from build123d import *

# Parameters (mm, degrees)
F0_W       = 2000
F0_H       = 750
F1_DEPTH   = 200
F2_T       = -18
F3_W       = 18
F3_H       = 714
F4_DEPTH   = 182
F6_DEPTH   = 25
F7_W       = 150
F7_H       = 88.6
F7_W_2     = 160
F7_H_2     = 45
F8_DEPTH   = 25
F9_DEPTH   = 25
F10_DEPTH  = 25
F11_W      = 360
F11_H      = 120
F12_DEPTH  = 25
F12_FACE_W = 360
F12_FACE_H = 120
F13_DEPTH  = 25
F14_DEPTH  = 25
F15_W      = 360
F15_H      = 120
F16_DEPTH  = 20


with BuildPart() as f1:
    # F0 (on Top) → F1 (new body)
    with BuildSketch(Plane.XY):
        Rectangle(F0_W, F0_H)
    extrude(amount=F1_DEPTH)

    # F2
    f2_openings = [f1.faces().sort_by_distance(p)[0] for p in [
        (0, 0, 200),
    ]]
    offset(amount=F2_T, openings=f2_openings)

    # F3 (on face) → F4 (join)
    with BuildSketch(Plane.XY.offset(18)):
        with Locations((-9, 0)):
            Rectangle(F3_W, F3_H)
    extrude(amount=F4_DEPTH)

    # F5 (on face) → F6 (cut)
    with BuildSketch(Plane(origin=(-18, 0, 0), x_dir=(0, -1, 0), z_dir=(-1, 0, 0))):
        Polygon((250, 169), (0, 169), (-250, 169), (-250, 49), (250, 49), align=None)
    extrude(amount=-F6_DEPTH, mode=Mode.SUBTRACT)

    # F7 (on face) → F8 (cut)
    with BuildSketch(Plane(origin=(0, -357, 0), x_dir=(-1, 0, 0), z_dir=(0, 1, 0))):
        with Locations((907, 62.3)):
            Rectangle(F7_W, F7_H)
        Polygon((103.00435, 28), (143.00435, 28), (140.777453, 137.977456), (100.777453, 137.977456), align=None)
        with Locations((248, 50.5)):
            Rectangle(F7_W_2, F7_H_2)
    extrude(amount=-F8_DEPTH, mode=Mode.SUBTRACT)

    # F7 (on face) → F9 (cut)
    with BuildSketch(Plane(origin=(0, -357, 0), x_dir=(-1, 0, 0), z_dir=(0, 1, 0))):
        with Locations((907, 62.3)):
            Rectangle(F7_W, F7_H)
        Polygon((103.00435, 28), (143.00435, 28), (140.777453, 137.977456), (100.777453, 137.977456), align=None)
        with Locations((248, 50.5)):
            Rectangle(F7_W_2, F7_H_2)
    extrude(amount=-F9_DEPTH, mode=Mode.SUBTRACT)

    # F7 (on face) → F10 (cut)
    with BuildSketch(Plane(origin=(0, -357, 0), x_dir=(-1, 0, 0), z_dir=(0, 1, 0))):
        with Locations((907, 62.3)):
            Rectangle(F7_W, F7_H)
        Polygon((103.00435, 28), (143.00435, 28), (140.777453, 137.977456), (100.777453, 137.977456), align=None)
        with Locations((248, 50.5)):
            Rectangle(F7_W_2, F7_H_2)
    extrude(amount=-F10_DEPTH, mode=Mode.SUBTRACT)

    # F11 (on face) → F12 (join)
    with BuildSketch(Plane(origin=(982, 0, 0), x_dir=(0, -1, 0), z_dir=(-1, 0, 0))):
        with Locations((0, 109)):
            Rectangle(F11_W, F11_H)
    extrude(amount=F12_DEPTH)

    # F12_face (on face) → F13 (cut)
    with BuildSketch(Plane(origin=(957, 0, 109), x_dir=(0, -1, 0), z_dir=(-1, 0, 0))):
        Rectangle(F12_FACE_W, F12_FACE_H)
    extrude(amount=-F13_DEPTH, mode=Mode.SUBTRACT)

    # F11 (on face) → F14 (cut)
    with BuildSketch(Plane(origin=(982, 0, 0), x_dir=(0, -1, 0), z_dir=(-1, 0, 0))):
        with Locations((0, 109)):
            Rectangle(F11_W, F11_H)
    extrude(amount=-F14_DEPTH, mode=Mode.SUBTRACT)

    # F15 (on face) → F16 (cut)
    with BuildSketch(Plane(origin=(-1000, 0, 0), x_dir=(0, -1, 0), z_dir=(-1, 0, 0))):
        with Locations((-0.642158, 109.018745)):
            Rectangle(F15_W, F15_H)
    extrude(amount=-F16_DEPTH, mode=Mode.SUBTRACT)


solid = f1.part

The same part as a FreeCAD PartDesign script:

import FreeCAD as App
import Part
import Sketcher
from FreeCAD import Vector
Q = App.Units.Quantity


def faces_at(feature, points):
    """Names of the faces that lie closest to the given points."""
    faces = feature.Shape.Faces
    near = lambda p: min(range(len(faces)), key=lambda i: faces[i].distToShape(Part.Vertex(*p))[0])
    return sorted({f"Face{near(p) + 1}" for p in points})


def add_polygon(sketch, points):
    """Adds a closed chain of lines whose ends are joined by coincident constraints."""
    first, n = sketch.GeometryCount, len(points)
    for a, b in zip(points, points[1:] + points[:1]):
        sketch.addGeometry(Part.LineSegment(App.Vector(*a, 0), App.Vector(*b, 0)), False)
    for i in range(n):
        sketch.addConstraint(Sketcher.Constraint("Coincident", first + i, 2, first + (i + 1) % n, 1))

doc = App.newDocument("Part")
params = doc.addObject("Spreadsheet::Sheet", "Params")
for row, (alias, value) in enumerate([
    ("sketch1_width", "2000 mm"),
    ("sketch1_height", "750 mm"),
    ("pad1_length", "200 mm"),
    ("thickness_wall", "18 mm"),
    ("sketch2_width", "18 mm"),
    ("sketch2_height", "714 mm"),
    ("pad2_length", "182 mm"),
    ("sketch3_width", "500 mm"),
    ("sketch3_height", "120 mm"),
    ("pocket1_length", "25 mm"),
    ("sketch4_width", "150 mm"),
    ("sketch4_width2", "40 mm"),
    ("sketch4_width3", "160 mm"),
    ("sketch4_height", "45 mm"),
    ("sketch4_length", "110 mm"),
    ("pocket2_length", "25 mm"),
    ("sketch5_width", "150 mm"),
    ("sketch5_width2", "40 mm"),
    ("sketch5_width3", "160 mm"),
    ("sketch5_height", "45 mm"),
    ("sketch5_length", "110 mm"),
    ("pocket3_length", "25 mm"),
    ("sketch6_width", "150 mm"),
    ("sketch6_width2", "40 mm"),
    ("sketch6_width3", "160 mm"),
    ("sketch6_height", "45 mm"),
    ("sketch6_length", "110 mm"),
    ("pocket4_length", "25 mm"),
    ("sketch7_width", "360 mm"),
    ("sketch7_height", "120 mm"),
    ("pad3_length", "25 mm"),
    ("sketch8_width", "360 mm"),
    ("sketch8_height", "120 mm"),
    ("pocket5_length", "25 mm"),
    ("sketch9_width", "360 mm"),
    ("sketch9_height", "120 mm"),
    ("pocket6_length", "25 mm"),
    ("sketch10_width", "360 mm"),
    ("sketch10_height", "120 mm"),
    ("pocket7_length", "20 mm"),
], start=1):
    params.set(f"A{row}", alias)
    params.set(f"B{row}", "=" + value)
    params.setAlias(f"B{row}", alias)

body = doc.addObject("PartDesign::Body", "Body")

# Sketch on XY plane
sketch1 = body.newObject("Sketcher::SketchObject", "Sketch")
sketch1.AttachmentSupport = (doc.getObject("XY_Plane"), [""])
sketch1.MapMode = "FlatFace"
add_polygon(sketch1, [(-1000, 375), (-1000, -375), (1000, -375), (1000, 375)])  # lines 0-3
sketch1.addConstraint(Sketcher.Constraint("Vertical", 0))
sketch1.addConstraint(Sketcher.Constraint("Horizontal", 1))
sketch1.addConstraint(Sketcher.Constraint("Vertical", 2))
sketch1.addConstraint(Sketcher.Constraint("Horizontal", 3))
sketch1.addConstraint(Sketcher.Constraint("Symmetric", 0, 2, 2, 2, -1, 1))
sketch1.addConstraint(Sketcher.Constraint("DistanceX", 1, 1, 1, 2, Q("2000 mm")))
sketch1.addConstraint(Sketcher.Constraint("DistanceY", 0, 2, 0, 1, Q("750 mm")))
sketch1.setExpression("Constraints[9]", "Params.sketch1_width")
sketch1.setExpression("Constraints[10]", "Params.sketch1_height")
pad1 = body.newObject("PartDesign::Pad", "Pad")
pad1.Profile = sketch1
pad1.setExpression("Length", "Params.pad1_length")
doc.recompute()

thickness = body.newObject("PartDesign::Thickness", "Thickness")
thickness.Base = (pad1, faces_at(pad1, [(0, 0, 200)]))
thickness.setExpression("Value", "Params.thickness_wall")
thickness.Reversed = True
thickness.Join = "Arc"

# Sketch on XY plane
sketch2 = body.newObject("Sketcher::SketchObject", "Sketch001")
sketch2.AttachmentSupport = (doc.getObject("XY_Plane"), [""])
sketch2.MapMode = "FlatFace"
sketch2.AttachmentOffset = App.Placement(Vector(0, 0, 18), App.Rotation())
add_polygon(sketch2, [(-18, 357), (-18, -357), (0, -357), (0, 357)])  # lines 0-3
sketch2.addConstraint(Sketcher.Constraint("Vertical", 0))
sketch2.addConstraint(Sketcher.Constraint("Horizontal", 1))
sketch2.addConstraint(Sketcher.Constraint("Vertical", 2))
sketch2.addConstraint(Sketcher.Constraint("Horizontal", 3))
sketch2.addConstraint(Sketcher.Constraint("Symmetric", 1, 2, 2, 2, -1, 1))
sketch2.addConstraint(Sketcher.Constraint("DistanceX", 1, 1, 1, 2, Q("18 mm")))
sketch2.addConstraint(Sketcher.Constraint("DistanceY", 0, 2, 0, 1, Q("714 mm")))
sketch2.setExpression("Constraints[9]", "Params.sketch2_width")
sketch2.setExpression("Constraints[10]", "Params.sketch2_height")
pad2 = body.newObject("PartDesign::Pad", "Pad001")
pad2.Profile = sketch2
pad2.setExpression("Length", "Params.pad2_length")

# Sketch on YZ plane
sketch3 = body.newObject("Sketcher::SketchObject", "Sketch002")
sketch3.AttachmentSupport = (doc.getObject("YZ_Plane"), [""])
sketch3.MapMode = "FlatFace"
sketch3.AttachmentOffset = App.Placement(Vector(0, 0, -18), App.Rotation())
add_polygon(sketch3, [(-250, 169), (250, 169), (250, 49), (-250, 49)])  # lines 0-3
sketch3.addConstraint(Sketcher.Constraint("Horizontal", 0))
sketch3.addConstraint(Sketcher.Constraint("Vertical", 1))
sketch3.addConstraint(Sketcher.Constraint("Horizontal", 2))
sketch3.addConstraint(Sketcher.Constraint("Vertical", 3))
sketch3.addConstraint(Sketcher.Constraint("DistanceX", 0, 1, 0, 2, Q("500 mm")))
sketch3.addConstraint(Sketcher.Constraint("DistanceY", 1, 2, 1, 1, Q("120 mm")))
sketch3.addConstraint(Sketcher.Constraint("DistanceX", -1, 1, 0, 2, Q("250 mm")))
sketch3.addConstraint(Sketcher.Constraint("DistanceY", -1, 1, 0, 2, Q("169 mm")))
sketch3.setExpression("Constraints[8]", "Params.sketch3_width")
sketch3.setExpression("Constraints[9]", "Params.sketch3_height")
pocket1 = body.newObject("PartDesign::Pocket", "Pocket")
pocket1.Profile = sketch3
pocket1.setExpression("Length", "Params.pocket1_length")
pocket1.Reversed = True

# Sketch on XZ plane
sketch4 = body.newObject("Sketcher::SketchObject", "Sketch003")
sketch4.AttachmentSupport = (doc.getObject("XZ_Plane"), [""])
sketch4.MapMode = "FlatFace"
sketch4.AttachmentOffset = App.Placement(Vector(0, 0, 357), App.Rotation())
add_polygon(sketch4, [(-832, 107), (-832, 18), (-982, 18), (-982, 107)])  # lines 0-3
add_polygon(sketch4, [(-103, 28), (-143, 28), (-141, 138), (-101, 138)])  # lines 4-7
add_polygon(sketch4, [(-168, 73), (-168, 28), (-328, 28), (-328, 73)])  # lines 8-11
sketch4.addConstraint(Sketcher.Constraint("Vertical", 0))
sketch4.addConstraint(Sketcher.Constraint("Horizontal", 1))
sketch4.addConstraint(Sketcher.Constraint("Vertical", 2))
sketch4.addConstraint(Sketcher.Constraint("Horizontal", 3))
sketch4.addConstraint(Sketcher.Constraint("Horizontal", 4))
sketch4.addConstraint(Sketcher.Constraint("Horizontal", 6))
sketch4.addConstraint(Sketcher.Constraint("Vertical", 8))
sketch4.addConstraint(Sketcher.Constraint("Horizontal", 9))
sketch4.addConstraint(Sketcher.Constraint("Vertical", 10))
sketch4.addConstraint(Sketcher.Constraint("Horizontal", 11))
sketch4.addConstraint(Sketcher.Constraint("Parallel", 5, 7))
sketch4.addConstraint(Sketcher.Constraint("Horizontal", 7, 2, 8, 2))
sketch4.addConstraint(Sketcher.Constraint("DistanceX", 1, 2, 1, 1, Q("150 mm")))
sketch4.addConstraint(Sketcher.Constraint("DistanceX", 4, 2, 4, 1, Q("40 mm")))
sketch4.addConstraint(Sketcher.Constraint("DistanceX", 9, 2, 9, 1, Q("160 mm")))
sketch4.addConstraint(Sketcher.Constraint("DistanceY", 8, 2, 8, 1, Q("45 mm")))
sketch4.addConstraint(Sketcher.Constraint("Distance", 5, Q("110 mm")))
sketch4.addConstraint(Sketcher.Constraint("DistanceY", 0, 2, 0, 1, Q("88.6 mm")))
sketch4.addConstraint(Sketcher.Constraint("DistanceX", 0, 2, -1, 1, Q("832 mm")))
sketch4.addConstraint(Sketcher.Constraint("DistanceY", -1, 1, 0, 2, Q("18 mm")))
sketch4.addConstraint(Sketcher.Constraint("DistanceY", -1, 1, 4, 2, Q("28 mm")))
sketch4.addConstraint(Sketcher.Constraint("DistanceX", 8, 2, -1, 1, Q("168 mm")))
sketch4.addConstraint(Sketcher.Constraint("Angle", 5, Q("88.839995 deg")))
sketch4.addConstraint(Sketcher.Constraint("DistanceX", 4, 2, -1, 1, Q("143.00435 mm")))
sketch4.setExpression("Constraints[24]", "Params.sketch4_width")
sketch4.setExpression("Constraints[25]", "Params.sketch4_width2")
sketch4.setExpression("Constraints[26]", "Params.sketch4_width3")
sketch4.setExpression("Constraints[27]", "Params.sketch4_height")
sketch4.setExpression("Constraints[28]", "Params.sketch4_length")
pocket2 = body.newObject("PartDesign::Pocket", "Pocket001")
pocket2.Profile = sketch4
pocket2.setExpression("Length", "Params.pocket2_length")
pocket2.Reversed = True

# Sketch on XZ plane
sketch5 = body.newObject("Sketcher::SketchObject", "Sketch004")
sketch5.AttachmentSupport = (doc.getObject("XZ_Plane"), [""])
sketch5.MapMode = "FlatFace"
sketch5.AttachmentOffset = App.Placement(Vector(0, 0, 357), App.Rotation())
add_polygon(sketch5, [(-832, 107), (-832, 18), (-982, 18), (-982, 107)])  # lines 0-3
add_polygon(sketch5, [(-103, 28), (-143, 28), (-141, 138), (-101, 138)])  # lines 4-7
add_polygon(sketch5, [(-168, 73), (-168, 28), (-328, 28), (-328, 73)])  # lines 8-11
sketch5.addConstraint(Sketcher.Constraint("Vertical", 0))
sketch5.addConstraint(Sketcher.Constraint("Horizontal", 1))
sketch5.addConstraint(Sketcher.Constraint("Vertical", 2))
sketch5.addConstraint(Sketcher.Constraint("Horizontal", 3))
sketch5.addConstraint(Sketcher.Constraint("Horizontal", 4))
sketch5.addConstraint(Sketcher.Constraint("Horizontal", 6))
sketch5.addConstraint(Sketcher.Constraint("Vertical", 8))
sketch5.addConstraint(Sketcher.Constraint("Horizontal", 9))
sketch5.addConstraint(Sketcher.Constraint("Vertical", 10))
sketch5.addConstraint(Sketcher.Constraint("Horizontal", 11))
sketch5.addConstraint(Sketcher.Constraint("Parallel", 5, 7))
sketch5.addConstraint(Sketcher.Constraint("Horizontal", 7, 2, 8, 2))
sketch5.addConstraint(Sketcher.Constraint("DistanceX", 1, 2, 1, 1, Q("150 mm")))
sketch5.addConstraint(Sketcher.Constraint("DistanceX", 4, 2, 4, 1, Q("40 mm")))
sketch5.addConstraint(Sketcher.Constraint("DistanceX", 9, 2, 9, 1, Q("160 mm")))
sketch5.addConstraint(Sketcher.Constraint("DistanceY", 8, 2, 8, 1, Q("45 mm")))
sketch5.addConstraint(Sketcher.Constraint("Distance", 5, Q("110 mm")))
sketch5.addConstraint(Sketcher.Constraint("DistanceY", 0, 2, 0, 1, Q("88.6 mm")))
sketch5.addConstraint(Sketcher.Constraint("DistanceX", 0, 2, -1, 1, Q("832 mm")))
sketch5.addConstraint(Sketcher.Constraint("DistanceY", -1, 1, 0, 2, Q("18 mm")))
sketch5.addConstraint(Sketcher.Constraint("DistanceY", -1, 1, 4, 2, Q("28 mm")))
sketch5.addConstraint(Sketcher.Constraint("DistanceX", 8, 2, -1, 1, Q("168 mm")))
sketch5.addConstraint(Sketcher.Constraint("Angle", 5, Q("88.839995 deg")))
sketch5.addConstraint(Sketcher.Constraint("DistanceX", 4, 2, -1, 1, Q("143.00435 mm")))
sketch5.setExpression("Constraints[24]", "Params.sketch5_width")
sketch5.setExpression("Constraints[25]", "Params.sketch5_width2")
sketch5.setExpression("Constraints[26]", "Params.sketch5_width3")
sketch5.setExpression("Constraints[27]", "Params.sketch5_height")
sketch5.setExpression("Constraints[28]", "Params.sketch5_length")
pocket3 = body.newObject("PartDesign::Pocket", "Pocket002")
pocket3.Profile = sketch5
pocket3.setExpression("Length", "Params.pocket3_length")
pocket3.Reversed = True

# Sketch on XZ plane
sketch6 = body.newObject("Sketcher::SketchObject", "Sketch005")
sketch6.AttachmentSupport = (doc.getObject("XZ_Plane"), [""])
sketch6.MapMode = "FlatFace"
sketch6.AttachmentOffset = App.Placement(Vector(0, 0, 357), App.Rotation())
add_polygon(sketch6, [(-832, 107), (-832, 18), (-982, 18), (-982, 107)])  # lines 0-3
add_polygon(sketch6, [(-103, 28), (-143, 28), (-141, 138), (-101, 138)])  # lines 4-7
add_polygon(sketch6, [(-168, 73), (-168, 28), (-328, 28), (-328, 73)])  # lines 8-11
sketch6.addConstraint(Sketcher.Constraint("Vertical", 0))
sketch6.addConstraint(Sketcher.Constraint("Horizontal", 1))
sketch6.addConstraint(Sketcher.Constraint("Vertical", 2))
sketch6.addConstraint(Sketcher.Constraint("Horizontal", 3))
sketch6.addConstraint(Sketcher.Constraint("Horizontal", 4))
sketch6.addConstraint(Sketcher.Constraint("Horizontal", 6))
sketch6.addConstraint(Sketcher.Constraint("Vertical", 8))
sketch6.addConstraint(Sketcher.Constraint("Horizontal", 9))
sketch6.addConstraint(Sketcher.Constraint("Vertical", 10))
sketch6.addConstraint(Sketcher.Constraint("Horizontal", 11))
sketch6.addConstraint(Sketcher.Constraint("Parallel", 5, 7))
sketch6.addConstraint(Sketcher.Constraint("Horizontal", 7, 2, 8, 2))
sketch6.addConstraint(Sketcher.Constraint("DistanceX", 1, 2, 1, 1, Q("150 mm")))
sketch6.addConstraint(Sketcher.Constraint("DistanceX", 4, 2, 4, 1, Q("40 mm")))
sketch6.addConstraint(Sketcher.Constraint("DistanceX", 9, 2, 9, 1, Q("160 mm")))
sketch6.addConstraint(Sketcher.Constraint("DistanceY", 8, 2, 8, 1, Q("45 mm")))
sketch6.addConstraint(Sketcher.Constraint("Distance", 5, Q("110 mm")))
sketch6.addConstraint(Sketcher.Constraint("DistanceY", 0, 2, 0, 1, Q("88.6 mm")))
sketch6.addConstraint(Sketcher.Constraint("DistanceX", 0, 2, -1, 1, Q("832 mm")))
sketch6.addConstraint(Sketcher.Constraint("DistanceY", -1, 1, 0, 2, Q("18 mm")))
sketch6.addConstraint(Sketcher.Constraint("DistanceY", -1, 1, 4, 2, Q("28 mm")))
sketch6.addConstraint(Sketcher.Constraint("DistanceX", 8, 2, -1, 1, Q("168 mm")))
sketch6.addConstraint(Sketcher.Constraint("Angle", 5, Q("88.839995 deg")))
sketch6.addConstraint(Sketcher.Constraint("DistanceX", 4, 2, -1, 1, Q("143.00435 mm")))
sketch6.setExpression("Constraints[24]", "Params.sketch6_width")
sketch6.setExpression("Constraints[25]", "Params.sketch6_width2")
sketch6.setExpression("Constraints[26]", "Params.sketch6_width3")
sketch6.setExpression("Constraints[27]", "Params.sketch6_height")
sketch6.setExpression("Constraints[28]", "Params.sketch6_length")
pocket4 = body.newObject("PartDesign::Pocket", "Pocket003")
pocket4.Profile = sketch6
pocket4.setExpression("Length", "Params.pocket4_length")
pocket4.Reversed = True

# Sketch on YZ plane
sketch7 = body.newObject("Sketcher::SketchObject", "Sketch006")
sketch7.AttachmentSupport = (doc.getObject("YZ_Plane"), [""])
sketch7.MapMode = "FlatFace"
sketch7.AttachmentOffset = App.Placement(Vector(0, 0, 982), App.Rotation())
add_polygon(sketch7, [(180, 169), (180, 49), (-180, 49), (-180, 169)])  # lines 0-3
sketch7.addConstraint(Sketcher.Constraint("Vertical", 0))
sketch7.addConstraint(Sketcher.Constraint("Horizontal", 1))
sketch7.addConstraint(Sketcher.Constraint("Vertical", 2))
sketch7.addConstraint(Sketcher.Constraint("Horizontal", 3))
sketch7.addConstraint(Sketcher.Constraint("DistanceX", 1, 2, 1, 1, Q("360 mm")))
sketch7.addConstraint(Sketcher.Constraint("DistanceY", 0, 2, 0, 1, Q("120 mm")))
sketch7.addConstraint(Sketcher.Constraint("DistanceX", -1, 1, 0, 2, Q("180 mm")))
sketch7.addConstraint(Sketcher.Constraint("DistanceY", -1, 1, 0, 2, Q("49 mm")))
sketch7.setExpression("Constraints[8]", "Params.sketch7_width")
sketch7.setExpression("Constraints[9]", "Params.sketch7_height")
pad3 = body.newObject("PartDesign::Pad", "Pad002")
pad3.Profile = sketch7
pad3.setExpression("Length", "Params.pad3_length")
pad3.Reversed = True

# Sketch on YZ plane
sketch8 = body.newObject("Sketcher::SketchObject", "Sketch007")
sketch8.AttachmentSupport = (doc.getObject("YZ_Plane"), [""])
sketch8.MapMode = "FlatFace"
sketch8.AttachmentOffset = App.Placement(Vector(0, 0, 957), App.Rotation())
add_polygon(sketch8, [(180, 169), (180, 49), (-180, 49), (-180, 169)])  # lines 0-3
sketch8.addConstraint(Sketcher.Constraint("Vertical", 0))
sketch8.addConstraint(Sketcher.Constraint("Horizontal", 1))
sketch8.addConstraint(Sketcher.Constraint("Vertical", 2))
sketch8.addConstraint(Sketcher.Constraint("Horizontal", 3))
sketch8.addConstraint(Sketcher.Constraint("DistanceX", 1, 2, 1, 1, Q("360 mm")))
sketch8.addConstraint(Sketcher.Constraint("DistanceY", 0, 2, 0, 1, Q("120 mm")))
sketch8.addConstraint(Sketcher.Constraint("DistanceX", -1, 1, 0, 2, Q("180 mm")))
sketch8.addConstraint(Sketcher.Constraint("DistanceY", -1, 1, 0, 2, Q("49 mm")))
sketch8.setExpression("Constraints[8]", "Params.sketch8_width")
sketch8.setExpression("Constraints[9]", "Params.sketch8_height")
pocket5 = body.newObject("PartDesign::Pocket", "Pocket004")
pocket5.Profile = sketch8
pocket5.setExpression("Length", "Params.pocket5_length")
pocket5.Reversed = True

# Sketch on YZ plane
sketch9 = body.newObject("Sketcher::SketchObject", "Sketch008")
sketch9.AttachmentSupport = (doc.getObject("YZ_Plane"), [""])
sketch9.MapMode = "FlatFace"
sketch9.AttachmentOffset = App.Placement(Vector(0, 0, 982), App.Rotation())
add_polygon(sketch9, [(180, 169), (180, 49), (-180, 49), (-180, 169)])  # lines 0-3
sketch9.addConstraint(Sketcher.Constraint("Vertical", 0))
sketch9.addConstraint(Sketcher.Constraint("Horizontal", 1))
sketch9.addConstraint(Sketcher.Constraint("Vertical", 2))
sketch9.addConstraint(Sketcher.Constraint("Horizontal", 3))
sketch9.addConstraint(Sketcher.Constraint("DistanceX", 1, 2, 1, 1, Q("360 mm")))
sketch9.addConstraint(Sketcher.Constraint("DistanceY", 0, 2, 0, 1, Q("120 mm")))
sketch9.addConstraint(Sketcher.Constraint("DistanceX", -1, 1, 0, 2, Q("180 mm")))
sketch9.addConstraint(Sketcher.Constraint("DistanceY", -1, 1, 0, 2, Q("49 mm")))
sketch9.setExpression("Constraints[8]", "Params.sketch9_width")
sketch9.setExpression("Constraints[9]", "Params.sketch9_height")
pocket6 = body.newObject("PartDesign::Pocket", "Pocket005")
pocket6.Profile = sketch9
pocket6.setExpression("Length", "Params.pocket6_length")
pocket6.Reversed = True

# Sketch on YZ plane
sketch10 = body.newObject("Sketcher::SketchObject", "Sketch009")
sketch10.AttachmentSupport = (doc.getObject("YZ_Plane"), [""])
sketch10.MapMode = "FlatFace"
sketch10.AttachmentOffset = App.Placement(Vector(0, 0, -1000), App.Rotation())
add_polygon(sketch10, [(181, 169), (181, 49), (-179, 49), (-179, 169)])  # lines 0-3
sketch10.addConstraint(Sketcher.Constraint("Vertical", 0))
sketch10.addConstraint(Sketcher.Constraint("Horizontal", 1))
sketch10.addConstraint(Sketcher.Constraint("Vertical", 2))
sketch10.addConstraint(Sketcher.Constraint("Horizontal", 3))
sketch10.addConstraint(Sketcher.Constraint("DistanceX", 1, 2, 1, 1, Q("360 mm")))
sketch10.addConstraint(Sketcher.Constraint("DistanceY", 0, 2, 0, 1, Q("120 mm")))
sketch10.addConstraint(Sketcher.Constraint("DistanceX", -1, 1, 0, 2, Q("180.642158 mm")))
sketch10.addConstraint(Sketcher.Constraint("DistanceY", -1, 1, 0, 2, Q("49.018745 mm")))
sketch10.setExpression("Constraints[8]", "Params.sketch10_width")
sketch10.setExpression("Constraints[9]", "Params.sketch10_height")
pocket7 = body.newObject("PartDesign::Pocket", "Pocket006")
pocket7.Profile = sketch10
pocket7.setExpression("Length", "Params.pocket7_length")
pocket7.Reversed = True

doc.recompute()
